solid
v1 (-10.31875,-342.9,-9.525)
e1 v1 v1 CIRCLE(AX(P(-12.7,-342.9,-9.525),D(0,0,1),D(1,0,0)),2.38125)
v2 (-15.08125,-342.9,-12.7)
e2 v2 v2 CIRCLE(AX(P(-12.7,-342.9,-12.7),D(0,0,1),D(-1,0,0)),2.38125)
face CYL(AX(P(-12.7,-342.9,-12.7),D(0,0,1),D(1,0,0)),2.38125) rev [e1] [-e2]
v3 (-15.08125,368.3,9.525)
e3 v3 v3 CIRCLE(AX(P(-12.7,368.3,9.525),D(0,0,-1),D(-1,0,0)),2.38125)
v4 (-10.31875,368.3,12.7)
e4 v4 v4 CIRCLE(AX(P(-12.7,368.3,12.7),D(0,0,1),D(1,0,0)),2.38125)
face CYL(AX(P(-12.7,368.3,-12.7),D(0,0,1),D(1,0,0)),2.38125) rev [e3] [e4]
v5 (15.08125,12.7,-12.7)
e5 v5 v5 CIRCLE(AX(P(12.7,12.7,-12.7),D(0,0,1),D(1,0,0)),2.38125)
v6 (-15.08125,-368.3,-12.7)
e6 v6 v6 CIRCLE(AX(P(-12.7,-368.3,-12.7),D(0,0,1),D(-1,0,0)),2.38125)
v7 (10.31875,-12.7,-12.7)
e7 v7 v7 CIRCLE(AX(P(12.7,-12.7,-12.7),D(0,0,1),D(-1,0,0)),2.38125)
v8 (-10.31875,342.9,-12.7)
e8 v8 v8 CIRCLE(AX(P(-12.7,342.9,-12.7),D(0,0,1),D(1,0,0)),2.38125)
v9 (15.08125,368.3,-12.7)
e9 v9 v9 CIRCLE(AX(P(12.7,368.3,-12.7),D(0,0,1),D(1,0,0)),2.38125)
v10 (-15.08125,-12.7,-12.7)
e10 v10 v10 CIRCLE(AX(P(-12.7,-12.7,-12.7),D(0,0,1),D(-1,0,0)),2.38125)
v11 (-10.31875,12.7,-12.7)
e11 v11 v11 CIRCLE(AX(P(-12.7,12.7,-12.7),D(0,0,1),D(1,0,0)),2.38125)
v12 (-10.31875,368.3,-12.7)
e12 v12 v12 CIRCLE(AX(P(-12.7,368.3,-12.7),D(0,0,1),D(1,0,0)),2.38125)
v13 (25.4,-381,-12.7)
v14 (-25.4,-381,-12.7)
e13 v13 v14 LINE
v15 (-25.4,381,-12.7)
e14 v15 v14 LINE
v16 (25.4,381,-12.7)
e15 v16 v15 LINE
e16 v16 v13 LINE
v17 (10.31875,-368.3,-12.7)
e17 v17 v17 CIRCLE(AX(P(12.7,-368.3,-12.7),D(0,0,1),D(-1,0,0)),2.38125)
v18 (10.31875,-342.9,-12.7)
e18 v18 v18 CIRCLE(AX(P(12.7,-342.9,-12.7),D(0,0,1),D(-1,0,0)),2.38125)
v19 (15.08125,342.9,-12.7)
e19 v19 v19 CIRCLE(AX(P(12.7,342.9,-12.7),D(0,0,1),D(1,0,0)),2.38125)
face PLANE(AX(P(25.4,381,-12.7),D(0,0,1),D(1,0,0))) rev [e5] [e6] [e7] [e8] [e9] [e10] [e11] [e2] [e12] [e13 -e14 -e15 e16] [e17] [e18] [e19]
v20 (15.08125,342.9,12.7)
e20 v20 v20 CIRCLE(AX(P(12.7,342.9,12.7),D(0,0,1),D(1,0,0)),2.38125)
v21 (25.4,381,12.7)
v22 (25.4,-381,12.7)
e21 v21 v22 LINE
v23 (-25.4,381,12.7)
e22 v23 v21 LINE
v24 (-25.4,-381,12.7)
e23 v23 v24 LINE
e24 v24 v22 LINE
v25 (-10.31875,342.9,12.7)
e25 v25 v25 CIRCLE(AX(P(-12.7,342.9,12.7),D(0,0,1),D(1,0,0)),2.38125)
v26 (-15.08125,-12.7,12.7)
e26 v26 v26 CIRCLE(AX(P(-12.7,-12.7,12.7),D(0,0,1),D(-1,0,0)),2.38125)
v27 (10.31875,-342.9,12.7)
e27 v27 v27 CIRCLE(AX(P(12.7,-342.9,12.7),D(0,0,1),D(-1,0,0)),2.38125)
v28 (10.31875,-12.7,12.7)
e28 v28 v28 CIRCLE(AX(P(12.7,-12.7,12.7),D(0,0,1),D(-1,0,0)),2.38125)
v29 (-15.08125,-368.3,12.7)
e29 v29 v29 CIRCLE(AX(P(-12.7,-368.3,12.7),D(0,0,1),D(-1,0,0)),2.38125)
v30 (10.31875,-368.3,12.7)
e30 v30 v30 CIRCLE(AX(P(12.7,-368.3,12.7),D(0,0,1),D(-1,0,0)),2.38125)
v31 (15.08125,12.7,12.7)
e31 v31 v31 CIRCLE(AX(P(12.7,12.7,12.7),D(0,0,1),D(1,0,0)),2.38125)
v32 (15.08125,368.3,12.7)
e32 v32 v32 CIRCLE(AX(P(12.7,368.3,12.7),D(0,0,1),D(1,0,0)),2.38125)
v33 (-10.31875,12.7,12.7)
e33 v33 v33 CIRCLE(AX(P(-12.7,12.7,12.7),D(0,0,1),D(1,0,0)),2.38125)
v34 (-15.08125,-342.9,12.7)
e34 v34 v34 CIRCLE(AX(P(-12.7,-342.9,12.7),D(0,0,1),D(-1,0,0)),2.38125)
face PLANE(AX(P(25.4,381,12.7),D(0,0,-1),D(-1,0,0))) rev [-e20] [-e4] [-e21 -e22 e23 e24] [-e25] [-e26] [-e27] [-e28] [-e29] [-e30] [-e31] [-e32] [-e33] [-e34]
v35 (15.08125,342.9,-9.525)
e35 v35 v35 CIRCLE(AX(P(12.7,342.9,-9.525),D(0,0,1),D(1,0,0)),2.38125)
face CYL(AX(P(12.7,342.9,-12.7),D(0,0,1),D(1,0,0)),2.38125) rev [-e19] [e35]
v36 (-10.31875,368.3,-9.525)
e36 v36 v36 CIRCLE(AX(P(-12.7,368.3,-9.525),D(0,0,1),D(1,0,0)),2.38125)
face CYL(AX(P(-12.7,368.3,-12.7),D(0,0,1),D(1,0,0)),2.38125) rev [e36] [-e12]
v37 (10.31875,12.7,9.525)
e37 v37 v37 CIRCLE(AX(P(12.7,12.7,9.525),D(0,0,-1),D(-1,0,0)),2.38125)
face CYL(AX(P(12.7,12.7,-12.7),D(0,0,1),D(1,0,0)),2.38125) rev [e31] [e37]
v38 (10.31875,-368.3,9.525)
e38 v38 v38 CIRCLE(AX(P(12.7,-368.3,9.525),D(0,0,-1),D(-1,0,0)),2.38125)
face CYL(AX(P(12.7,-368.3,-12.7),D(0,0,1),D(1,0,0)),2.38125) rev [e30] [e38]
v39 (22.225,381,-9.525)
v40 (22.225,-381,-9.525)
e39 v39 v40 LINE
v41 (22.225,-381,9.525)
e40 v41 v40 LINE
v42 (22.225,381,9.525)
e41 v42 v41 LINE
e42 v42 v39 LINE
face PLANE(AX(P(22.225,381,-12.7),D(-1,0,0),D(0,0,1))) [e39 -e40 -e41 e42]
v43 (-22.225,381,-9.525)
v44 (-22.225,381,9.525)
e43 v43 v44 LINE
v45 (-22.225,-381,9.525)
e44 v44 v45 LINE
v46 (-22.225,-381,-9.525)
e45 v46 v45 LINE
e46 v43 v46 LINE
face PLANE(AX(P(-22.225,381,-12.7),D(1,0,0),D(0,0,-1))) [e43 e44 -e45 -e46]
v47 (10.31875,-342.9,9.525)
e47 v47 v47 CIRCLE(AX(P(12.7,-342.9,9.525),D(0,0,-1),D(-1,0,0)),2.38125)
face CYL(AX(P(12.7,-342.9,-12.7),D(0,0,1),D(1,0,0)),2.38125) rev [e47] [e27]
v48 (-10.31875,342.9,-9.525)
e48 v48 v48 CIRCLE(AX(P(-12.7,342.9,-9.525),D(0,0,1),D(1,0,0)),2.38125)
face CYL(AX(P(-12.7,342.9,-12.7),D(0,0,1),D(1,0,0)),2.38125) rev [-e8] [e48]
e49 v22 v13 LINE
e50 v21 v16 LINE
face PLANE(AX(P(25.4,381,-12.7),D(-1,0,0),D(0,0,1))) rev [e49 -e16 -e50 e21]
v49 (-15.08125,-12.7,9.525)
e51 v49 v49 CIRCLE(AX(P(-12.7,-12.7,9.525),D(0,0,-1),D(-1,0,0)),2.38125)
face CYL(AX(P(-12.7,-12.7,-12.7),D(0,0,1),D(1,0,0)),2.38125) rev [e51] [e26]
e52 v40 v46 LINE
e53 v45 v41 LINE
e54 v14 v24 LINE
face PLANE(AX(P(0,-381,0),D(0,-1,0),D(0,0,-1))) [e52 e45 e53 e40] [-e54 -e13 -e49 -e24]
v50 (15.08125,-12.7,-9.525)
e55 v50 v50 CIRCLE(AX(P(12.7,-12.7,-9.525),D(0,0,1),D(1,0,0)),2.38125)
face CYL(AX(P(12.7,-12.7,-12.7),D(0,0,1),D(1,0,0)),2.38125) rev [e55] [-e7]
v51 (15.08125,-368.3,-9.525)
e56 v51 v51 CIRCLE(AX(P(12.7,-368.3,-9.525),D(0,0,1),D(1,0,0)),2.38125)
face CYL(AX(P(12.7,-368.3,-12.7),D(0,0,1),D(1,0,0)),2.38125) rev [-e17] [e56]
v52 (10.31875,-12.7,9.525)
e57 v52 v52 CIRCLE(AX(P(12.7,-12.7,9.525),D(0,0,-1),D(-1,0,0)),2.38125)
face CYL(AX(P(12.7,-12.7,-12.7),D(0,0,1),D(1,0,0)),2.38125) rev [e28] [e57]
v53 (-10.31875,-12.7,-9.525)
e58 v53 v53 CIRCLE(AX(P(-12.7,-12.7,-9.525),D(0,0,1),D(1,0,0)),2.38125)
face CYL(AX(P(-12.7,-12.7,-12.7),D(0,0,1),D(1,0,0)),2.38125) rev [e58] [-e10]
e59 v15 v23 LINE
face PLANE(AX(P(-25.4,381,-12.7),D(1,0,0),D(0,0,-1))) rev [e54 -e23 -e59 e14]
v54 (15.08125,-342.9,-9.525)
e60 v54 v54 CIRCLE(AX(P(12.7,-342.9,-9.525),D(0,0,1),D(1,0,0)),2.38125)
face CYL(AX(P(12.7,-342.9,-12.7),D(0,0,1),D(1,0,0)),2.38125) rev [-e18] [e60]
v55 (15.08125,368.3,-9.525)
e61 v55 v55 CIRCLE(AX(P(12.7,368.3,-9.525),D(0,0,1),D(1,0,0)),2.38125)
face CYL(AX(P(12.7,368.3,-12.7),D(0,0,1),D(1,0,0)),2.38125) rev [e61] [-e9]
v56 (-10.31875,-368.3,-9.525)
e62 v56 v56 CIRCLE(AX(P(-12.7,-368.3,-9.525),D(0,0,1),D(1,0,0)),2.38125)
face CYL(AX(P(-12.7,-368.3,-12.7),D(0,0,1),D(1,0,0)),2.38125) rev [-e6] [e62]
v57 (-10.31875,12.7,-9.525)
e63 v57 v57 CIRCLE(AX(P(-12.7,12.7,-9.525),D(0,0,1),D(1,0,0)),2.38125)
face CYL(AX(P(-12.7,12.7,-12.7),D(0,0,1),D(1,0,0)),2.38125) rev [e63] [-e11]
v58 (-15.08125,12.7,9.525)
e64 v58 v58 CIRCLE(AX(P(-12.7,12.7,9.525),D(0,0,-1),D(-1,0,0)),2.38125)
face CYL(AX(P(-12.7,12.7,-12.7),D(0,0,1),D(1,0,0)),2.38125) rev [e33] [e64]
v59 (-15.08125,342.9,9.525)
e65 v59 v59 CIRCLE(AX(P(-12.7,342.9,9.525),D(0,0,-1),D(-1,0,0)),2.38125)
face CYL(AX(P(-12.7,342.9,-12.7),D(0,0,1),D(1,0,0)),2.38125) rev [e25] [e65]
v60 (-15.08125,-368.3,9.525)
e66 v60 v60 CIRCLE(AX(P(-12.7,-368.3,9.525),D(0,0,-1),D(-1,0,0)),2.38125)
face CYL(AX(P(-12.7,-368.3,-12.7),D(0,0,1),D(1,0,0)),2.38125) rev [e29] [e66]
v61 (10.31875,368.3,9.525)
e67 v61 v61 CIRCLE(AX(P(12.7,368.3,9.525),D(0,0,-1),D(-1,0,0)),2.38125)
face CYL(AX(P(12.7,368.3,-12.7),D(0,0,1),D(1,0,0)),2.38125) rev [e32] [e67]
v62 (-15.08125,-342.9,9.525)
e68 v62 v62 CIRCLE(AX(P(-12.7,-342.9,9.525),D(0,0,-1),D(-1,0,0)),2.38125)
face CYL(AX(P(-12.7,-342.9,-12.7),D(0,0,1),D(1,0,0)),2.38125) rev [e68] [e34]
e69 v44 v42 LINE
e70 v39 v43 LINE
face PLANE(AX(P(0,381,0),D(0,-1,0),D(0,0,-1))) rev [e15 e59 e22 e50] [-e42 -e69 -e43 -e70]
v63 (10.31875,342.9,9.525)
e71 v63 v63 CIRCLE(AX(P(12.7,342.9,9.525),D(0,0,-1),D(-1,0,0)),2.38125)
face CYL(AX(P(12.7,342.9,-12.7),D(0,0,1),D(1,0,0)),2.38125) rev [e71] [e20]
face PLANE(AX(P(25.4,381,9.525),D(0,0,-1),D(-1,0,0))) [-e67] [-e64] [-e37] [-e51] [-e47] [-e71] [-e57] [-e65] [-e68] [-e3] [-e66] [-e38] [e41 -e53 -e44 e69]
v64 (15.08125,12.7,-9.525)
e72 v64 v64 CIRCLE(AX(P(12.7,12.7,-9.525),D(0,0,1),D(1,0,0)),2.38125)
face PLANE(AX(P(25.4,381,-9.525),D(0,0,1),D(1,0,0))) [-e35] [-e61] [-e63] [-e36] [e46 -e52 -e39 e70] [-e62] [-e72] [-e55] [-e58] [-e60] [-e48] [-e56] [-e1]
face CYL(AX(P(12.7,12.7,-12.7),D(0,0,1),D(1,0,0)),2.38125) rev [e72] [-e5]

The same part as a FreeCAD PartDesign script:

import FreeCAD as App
import Part
import Sketcher

V = App.Vector
Q = App.Units.Quantity


def faces_at(feature, points):
    """Names of the faces that lie closest to the given points."""
    faces = feature.Shape.Faces
    near = lambda p: min(range(len(faces)), key=lambda i: faces[i].distToShape(Part.Vertex(*p))[0])
    return sorted({f"Face{near(p) + 1}" for p in points})

doc = App.newDocument("Part")
body = doc.addObject("PartDesign::Body", "Body")

sketch1 = doc.addObject("Sketcher::SketchObject", "Sketch")
body.addObject(sketch1)
sketch1.AttachmentSupport = (doc.XZ_Plane, [""])
sketch1.MapMode = "FlatFace"
sketch1.addGeometry([
    Part.LineSegment(V(-25.4, -12.7, 0), V(-25.4, 12.7, 0)),
    Part.LineSegment(V(-25.4, 12.7, 0), V(25.4, 12.7, 0)),
    Part.LineSegment(V(25.4, 12.7, 0), V(25.4, -12.7, 0)),
    Part.LineSegment(V(25.4, -12.7, 0), V(-25.4, -12.7, 0)),
], False)
sketch1.addConstraint([
    Sketcher.Constraint("Coincident", 0, 2, 1, 1),
    Sketcher.Constraint("Coincident", 1, 2, 2, 1),
    Sketcher.Constraint("Coincident", 2, 2, 3, 1),
    Sketcher.Constraint("Coincident", 3, 2, 0, 1),
    Sketcher.Constraint("Vertical", 0),
    Sketcher.Constraint("Horizontal", 1),
    Sketcher.Constraint("Vertical", 2),
    Sketcher.Constraint("Horizontal", 3),
    Sketcher.Constraint("Symmetric", 0, 2, 2, 2, -1, 1),
    Sketcher.Constraint("DistanceX", 1, 1, 1, 2, Q("2 in")),
    Sketcher.Constraint("DistanceY", 0, 1, 0, 2, Q("1 in")),
])
pad1 = doc.addObject("PartDesign::Pad", "Pad")
body.addObject(pad1)
pad1.Profile = sketch1
pad1.Length = Q("30 in")
pad1.Midplane = True
doc.recompute()

thickness = doc.addObject("PartDesign::Thickness", "Thickness")
body.addObject(thickness)
thickness.Base = (pad1, faces_at(pad1, [(0, 381, 0), (0, -381, 0)]))
thickness.Value = Q("0.125 in")
thickness.Reversed = True
thickness.Join = "Intersection"

sketch2 = doc.addObject("Sketcher::SketchObject", "Sketch001")
body.addObject(sketch2)
sketch2.AttachmentSupport = (doc.XY_Plane, [""])
sketch2.MapMode = "FlatFace"
sketch2.AttachmentOffset = App.Placement(V(0, 0, 0.5 * 25.4), App.Rotation())
sketch2.addGeometry([
    Part.Circle(V(-12.7, 368.3, 0), V(0, 0, 1), 2.38125),
    Part.Circle(V(12.7, 368.3, 0), V(0, 0, 1), 2.38125),
    Part.Circle(V(12.7, 342.9, 0), V(0, 0, 1), 2.38125),
    Part.Circle(V(-12.7, 342.9, 0), V(0, 0, 1), 2.38125),
    Part.Circle(V(-12.7, -342.9, 0), V(0, 0, 1), 2.38125),
    Part.Circle(V(12.7, -342.9, 0), V(0, 0, 1), 2.38125),
    Part.Circle(V(12.7, -368.3, 0), V(0, 0, 1), 2.38125),
    Part.Circle(V(-12.7, -368.3, 0), V(0, 0, 1), 2.38125),
    Part.Circle(V(-12.7, 12.7, 0), V(0, 0, 1), 2.38125),
    Part.Circle(V(12.7, 12.7, 0), V(0, 0, 1), 2.38125),
    Part.Circle(V(12.7, -12.7, 0), V(0, 0, 1), 2.38125),
    Part.Circle(V(-12.7, -12.7, 0), V(0, 0, 1), 2.38125),
], False)
sketch2.addConstraint([
    Sketcher.Constraint("Equal", 0, 1),
    Sketcher.Constraint("Equal", 1, 2),
    Sketcher.Constraint("Equal", 2, 3),
    Sketcher.Constraint("Equal", 3, 4),
    Sketcher.Constraint("Equal", 4, 5),
    Sketcher.Constraint("Equal", 5, 6),
    Sketcher.Constraint("Equal", 6, 7),
    Sketcher.Constraint("Equal", 7, 8),
    Sketcher.Constraint("Equal", 8, 9),
    Sketcher.Constraint("Equal", 9, 10),
    Sketcher.Constraint("Equal", 10, 11),
    Sketcher.Constraint("Symmetric", 2, 3, 4, 3, -1, 1),
    Sketcher.Constraint("Symmetric", 3, 3, 5, 3, -1, 1),
    Sketcher.Constraint("Symmetric", 0, 3, 6, 3, -1, 1),
    Sketcher.Constraint("Symmetric", 1, 3, 7, 3, -1, 1),
    Sketcher.Constraint("Symmetric", 8, 3, 10, 3, -1, 1),
    Sketcher.Constraint("Symmetric", 9, 3, 11, 3, -1, 1),
    Sketcher.Constraint("Symmetric", 0, 3, 1, 3, -2),
    Sketcher.Constraint("Symmetric", 2, 3, 3, 3, -2),
    Sketcher.Constraint("Symmetric", 8, 3, 9, 3, -2),
    Sketcher.Constraint("Vertical", 1, 3, 2, 3),
    Sketcher.Constraint("Vertical", 7, 3, 8, 3),
    Sketcher.Constraint("Diameter", 0, Q("0.1875 in")),
    Sketcher.Constraint("DistanceX", 0, 3, 1, 3, Q("1 in")),
    Sketcher.Constraint("DistanceY", 2, 3, 1, 3, Q("1 in")),
    Sketcher.Constraint("DistanceY", 4, 3, 3, 3, Q("27 in")),
    Sketcher.Constraint("DistanceY", 8, 3, 3, 3, Q("13 in")),
])
pocket1 = doc.addObject("PartDesign::Pocket", "Pocket")
body.addObject(pocket1)
pocket1.Profile = sketch2
pocket1.Type = "ThroughAll"
pocket1.Midplane = True

doc.recompute()
